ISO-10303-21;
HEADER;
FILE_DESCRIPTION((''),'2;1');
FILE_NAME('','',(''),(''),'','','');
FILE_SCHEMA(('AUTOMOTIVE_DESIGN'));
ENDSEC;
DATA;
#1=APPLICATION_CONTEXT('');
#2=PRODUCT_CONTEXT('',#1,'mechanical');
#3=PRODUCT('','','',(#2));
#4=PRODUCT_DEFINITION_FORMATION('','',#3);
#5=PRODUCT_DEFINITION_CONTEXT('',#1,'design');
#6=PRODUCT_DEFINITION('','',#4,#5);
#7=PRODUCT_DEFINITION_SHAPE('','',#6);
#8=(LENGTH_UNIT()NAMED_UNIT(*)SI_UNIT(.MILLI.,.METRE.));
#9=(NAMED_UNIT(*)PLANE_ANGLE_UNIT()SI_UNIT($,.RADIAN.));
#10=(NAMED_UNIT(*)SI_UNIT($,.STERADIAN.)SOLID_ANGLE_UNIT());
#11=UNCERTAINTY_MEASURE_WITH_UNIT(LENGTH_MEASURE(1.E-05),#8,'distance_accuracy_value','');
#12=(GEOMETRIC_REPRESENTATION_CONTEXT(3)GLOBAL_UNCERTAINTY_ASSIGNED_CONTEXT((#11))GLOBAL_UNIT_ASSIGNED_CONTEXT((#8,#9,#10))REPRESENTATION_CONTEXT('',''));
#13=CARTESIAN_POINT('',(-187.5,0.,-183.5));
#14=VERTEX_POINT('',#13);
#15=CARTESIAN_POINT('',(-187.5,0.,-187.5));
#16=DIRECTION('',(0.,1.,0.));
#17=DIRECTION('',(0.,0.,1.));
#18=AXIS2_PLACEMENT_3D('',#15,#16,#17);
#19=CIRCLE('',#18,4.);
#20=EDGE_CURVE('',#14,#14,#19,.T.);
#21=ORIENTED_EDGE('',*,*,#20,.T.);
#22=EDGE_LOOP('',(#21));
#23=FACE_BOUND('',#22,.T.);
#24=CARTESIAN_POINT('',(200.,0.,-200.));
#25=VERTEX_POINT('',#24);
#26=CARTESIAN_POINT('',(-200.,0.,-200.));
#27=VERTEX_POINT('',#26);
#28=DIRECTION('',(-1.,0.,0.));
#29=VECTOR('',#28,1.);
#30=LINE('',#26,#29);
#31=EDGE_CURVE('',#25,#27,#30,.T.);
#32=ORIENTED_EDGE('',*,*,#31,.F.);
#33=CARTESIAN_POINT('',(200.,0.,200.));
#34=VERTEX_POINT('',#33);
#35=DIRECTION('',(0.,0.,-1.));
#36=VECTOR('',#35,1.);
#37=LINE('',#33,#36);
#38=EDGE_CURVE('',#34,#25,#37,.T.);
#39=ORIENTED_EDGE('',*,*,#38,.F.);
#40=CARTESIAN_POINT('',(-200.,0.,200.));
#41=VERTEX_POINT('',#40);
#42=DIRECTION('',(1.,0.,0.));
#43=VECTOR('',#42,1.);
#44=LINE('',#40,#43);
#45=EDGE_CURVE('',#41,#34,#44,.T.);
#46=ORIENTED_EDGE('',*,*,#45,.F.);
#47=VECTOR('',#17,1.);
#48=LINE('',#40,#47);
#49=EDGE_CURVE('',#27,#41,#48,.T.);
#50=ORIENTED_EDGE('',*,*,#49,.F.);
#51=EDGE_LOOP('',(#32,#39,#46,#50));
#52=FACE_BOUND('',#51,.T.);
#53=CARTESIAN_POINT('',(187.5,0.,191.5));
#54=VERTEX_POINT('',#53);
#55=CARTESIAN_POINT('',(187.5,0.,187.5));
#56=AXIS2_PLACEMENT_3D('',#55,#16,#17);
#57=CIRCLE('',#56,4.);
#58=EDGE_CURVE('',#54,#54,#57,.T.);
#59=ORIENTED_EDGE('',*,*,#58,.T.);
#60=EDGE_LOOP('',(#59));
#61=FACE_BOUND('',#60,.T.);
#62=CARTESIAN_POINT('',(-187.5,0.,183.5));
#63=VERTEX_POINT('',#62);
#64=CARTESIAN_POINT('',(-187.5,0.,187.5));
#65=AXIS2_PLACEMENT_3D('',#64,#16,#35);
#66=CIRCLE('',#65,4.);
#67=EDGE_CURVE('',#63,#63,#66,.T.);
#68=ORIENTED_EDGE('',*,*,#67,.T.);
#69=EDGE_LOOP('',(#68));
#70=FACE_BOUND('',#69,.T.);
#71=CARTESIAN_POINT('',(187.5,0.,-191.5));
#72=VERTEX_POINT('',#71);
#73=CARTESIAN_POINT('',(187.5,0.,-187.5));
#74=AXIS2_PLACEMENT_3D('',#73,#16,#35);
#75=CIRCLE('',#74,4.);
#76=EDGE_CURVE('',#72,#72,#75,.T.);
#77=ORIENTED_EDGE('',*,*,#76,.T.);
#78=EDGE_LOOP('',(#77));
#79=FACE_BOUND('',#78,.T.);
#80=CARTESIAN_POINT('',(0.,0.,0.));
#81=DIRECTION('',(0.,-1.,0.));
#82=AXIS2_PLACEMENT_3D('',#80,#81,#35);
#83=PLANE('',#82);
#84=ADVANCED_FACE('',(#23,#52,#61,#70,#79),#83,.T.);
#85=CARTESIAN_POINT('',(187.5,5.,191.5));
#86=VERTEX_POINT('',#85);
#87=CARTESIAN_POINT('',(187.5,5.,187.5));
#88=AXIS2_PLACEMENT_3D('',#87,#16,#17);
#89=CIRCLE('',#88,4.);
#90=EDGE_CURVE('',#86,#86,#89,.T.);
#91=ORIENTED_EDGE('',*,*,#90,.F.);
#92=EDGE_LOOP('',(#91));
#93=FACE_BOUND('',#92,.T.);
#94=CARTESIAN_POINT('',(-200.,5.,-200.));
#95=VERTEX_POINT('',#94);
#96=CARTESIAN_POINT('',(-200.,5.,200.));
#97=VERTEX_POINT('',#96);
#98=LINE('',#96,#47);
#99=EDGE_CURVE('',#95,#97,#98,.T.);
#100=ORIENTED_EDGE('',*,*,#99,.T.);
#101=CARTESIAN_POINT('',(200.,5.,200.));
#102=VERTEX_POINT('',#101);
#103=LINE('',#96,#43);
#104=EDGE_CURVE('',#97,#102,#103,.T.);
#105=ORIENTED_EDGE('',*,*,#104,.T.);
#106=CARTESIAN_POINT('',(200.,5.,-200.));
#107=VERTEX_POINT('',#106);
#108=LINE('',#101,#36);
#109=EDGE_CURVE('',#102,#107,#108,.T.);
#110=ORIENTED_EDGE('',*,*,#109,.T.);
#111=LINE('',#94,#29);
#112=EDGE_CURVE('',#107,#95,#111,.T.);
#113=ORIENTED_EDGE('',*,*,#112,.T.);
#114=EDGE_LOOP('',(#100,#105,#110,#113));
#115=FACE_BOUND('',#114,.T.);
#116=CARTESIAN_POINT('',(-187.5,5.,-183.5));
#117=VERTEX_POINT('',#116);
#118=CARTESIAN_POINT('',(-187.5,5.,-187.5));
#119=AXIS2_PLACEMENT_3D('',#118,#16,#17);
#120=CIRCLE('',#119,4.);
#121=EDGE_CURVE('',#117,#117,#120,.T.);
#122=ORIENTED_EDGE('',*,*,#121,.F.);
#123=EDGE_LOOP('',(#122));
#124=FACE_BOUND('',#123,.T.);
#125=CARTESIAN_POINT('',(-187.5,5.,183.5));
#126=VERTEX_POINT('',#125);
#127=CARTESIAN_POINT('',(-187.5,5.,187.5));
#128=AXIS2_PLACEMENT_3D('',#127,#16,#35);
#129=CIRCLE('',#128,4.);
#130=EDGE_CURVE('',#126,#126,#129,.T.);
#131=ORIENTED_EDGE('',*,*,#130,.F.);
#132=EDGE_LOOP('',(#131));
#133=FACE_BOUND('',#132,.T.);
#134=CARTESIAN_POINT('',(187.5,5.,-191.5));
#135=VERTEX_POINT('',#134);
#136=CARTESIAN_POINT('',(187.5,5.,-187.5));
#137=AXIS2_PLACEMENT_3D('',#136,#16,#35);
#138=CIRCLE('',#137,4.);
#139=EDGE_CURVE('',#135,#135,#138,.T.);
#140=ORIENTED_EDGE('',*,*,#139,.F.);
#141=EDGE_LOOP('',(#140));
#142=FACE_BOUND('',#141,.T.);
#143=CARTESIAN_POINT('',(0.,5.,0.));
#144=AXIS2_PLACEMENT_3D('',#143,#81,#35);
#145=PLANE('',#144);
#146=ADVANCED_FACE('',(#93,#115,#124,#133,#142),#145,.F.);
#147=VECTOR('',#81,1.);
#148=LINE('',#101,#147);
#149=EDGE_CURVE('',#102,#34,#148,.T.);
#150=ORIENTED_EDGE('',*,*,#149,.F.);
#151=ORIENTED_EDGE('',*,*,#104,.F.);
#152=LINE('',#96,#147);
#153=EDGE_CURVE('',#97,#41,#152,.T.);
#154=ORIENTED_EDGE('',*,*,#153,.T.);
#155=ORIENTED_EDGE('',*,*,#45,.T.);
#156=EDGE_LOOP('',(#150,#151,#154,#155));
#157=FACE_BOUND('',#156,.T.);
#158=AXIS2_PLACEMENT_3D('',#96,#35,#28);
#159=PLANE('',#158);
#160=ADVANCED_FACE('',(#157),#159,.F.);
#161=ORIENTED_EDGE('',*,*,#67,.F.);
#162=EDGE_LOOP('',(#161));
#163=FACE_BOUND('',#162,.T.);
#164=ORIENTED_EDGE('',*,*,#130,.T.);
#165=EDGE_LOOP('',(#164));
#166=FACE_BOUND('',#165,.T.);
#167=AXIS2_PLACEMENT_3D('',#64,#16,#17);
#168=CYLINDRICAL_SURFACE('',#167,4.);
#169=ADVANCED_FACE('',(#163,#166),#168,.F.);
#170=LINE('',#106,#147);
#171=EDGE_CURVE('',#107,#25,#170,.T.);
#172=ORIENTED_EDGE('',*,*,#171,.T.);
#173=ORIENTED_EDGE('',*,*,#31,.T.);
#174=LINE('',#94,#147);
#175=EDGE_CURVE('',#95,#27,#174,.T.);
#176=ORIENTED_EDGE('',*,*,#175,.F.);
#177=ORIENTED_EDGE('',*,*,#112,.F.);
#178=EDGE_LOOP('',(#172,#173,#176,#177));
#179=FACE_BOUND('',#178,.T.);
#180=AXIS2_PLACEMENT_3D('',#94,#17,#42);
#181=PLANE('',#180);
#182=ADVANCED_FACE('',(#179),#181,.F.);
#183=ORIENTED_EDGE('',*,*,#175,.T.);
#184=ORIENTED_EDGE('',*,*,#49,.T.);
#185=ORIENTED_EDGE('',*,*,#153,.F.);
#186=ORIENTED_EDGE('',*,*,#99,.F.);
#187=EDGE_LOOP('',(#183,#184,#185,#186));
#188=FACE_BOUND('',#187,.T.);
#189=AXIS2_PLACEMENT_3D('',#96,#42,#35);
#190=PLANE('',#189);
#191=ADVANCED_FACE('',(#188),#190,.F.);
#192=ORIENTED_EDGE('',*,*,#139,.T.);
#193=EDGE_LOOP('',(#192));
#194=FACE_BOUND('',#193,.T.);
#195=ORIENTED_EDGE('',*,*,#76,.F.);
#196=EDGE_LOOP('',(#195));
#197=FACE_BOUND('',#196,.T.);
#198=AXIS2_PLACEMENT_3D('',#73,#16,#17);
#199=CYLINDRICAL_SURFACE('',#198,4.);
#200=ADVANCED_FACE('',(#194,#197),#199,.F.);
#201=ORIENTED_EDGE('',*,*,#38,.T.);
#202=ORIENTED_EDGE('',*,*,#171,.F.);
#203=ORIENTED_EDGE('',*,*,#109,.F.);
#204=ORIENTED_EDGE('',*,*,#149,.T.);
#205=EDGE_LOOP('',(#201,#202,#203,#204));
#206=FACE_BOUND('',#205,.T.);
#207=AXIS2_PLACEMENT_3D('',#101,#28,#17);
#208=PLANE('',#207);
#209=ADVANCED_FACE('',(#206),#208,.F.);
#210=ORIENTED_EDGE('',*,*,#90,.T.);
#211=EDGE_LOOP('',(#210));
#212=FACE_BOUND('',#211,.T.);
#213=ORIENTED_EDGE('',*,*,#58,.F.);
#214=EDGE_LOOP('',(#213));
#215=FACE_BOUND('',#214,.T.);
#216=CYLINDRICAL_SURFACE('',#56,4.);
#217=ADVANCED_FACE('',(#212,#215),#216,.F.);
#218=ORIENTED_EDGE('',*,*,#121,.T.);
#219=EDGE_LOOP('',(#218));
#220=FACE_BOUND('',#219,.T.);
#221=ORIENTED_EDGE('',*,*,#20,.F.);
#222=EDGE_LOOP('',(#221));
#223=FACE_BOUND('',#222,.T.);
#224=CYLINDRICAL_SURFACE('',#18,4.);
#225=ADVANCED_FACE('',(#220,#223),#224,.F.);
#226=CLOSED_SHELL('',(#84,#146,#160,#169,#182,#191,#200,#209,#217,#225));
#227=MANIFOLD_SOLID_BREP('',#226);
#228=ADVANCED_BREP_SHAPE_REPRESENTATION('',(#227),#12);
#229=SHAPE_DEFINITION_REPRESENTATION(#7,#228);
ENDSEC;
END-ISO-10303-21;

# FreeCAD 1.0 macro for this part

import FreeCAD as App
import Part
import Sketcher
from FreeCAD import Vector

doc = App.newDocument("Part")
body = doc.addObject("PartDesign::Body", "Body")

# Sketch on XZ plane
sketch1 = doc.addObject("Sketcher::SketchObject", "Sketch")
body.addObject(sketch1)
sketch1.AttachmentSupport = (doc.XZ_Plane, [""])
sketch1.MapMode = "FlatFace"
sketch1.addGeometry(Part.LineSegment(Vector(-200, -200, 0), Vector(-200, 200, 0)), False)
sketch1.addGeometry(Part.LineSegment(Vector(-200, 200, 0), Vector(200, 200, 0)), False)
sketch1.addGeometry(Part.LineSegment(Vector(200, 200, 0), Vector(200, -200, 0)), False)
sketch1.addGeometry(Part.LineSegment(Vector(200, -200, 0), Vector(-200, -200, 0)), False)
sketch1.addConstraint(Sketcher.Constraint("Coincident", 0, 2, 1, 1))
sketch1.addConstraint(Sketcher.Constraint("Coincident", 1, 2, 2, 1))
sketch1.addConstraint(Sketcher.Constraint("Coincident", 2, 2, 3, 1))
sketch1.addConstraint(Sketcher.Constraint("Coincident", 3, 2, 0, 1))
sketch1.addConstraint(Sketcher.Constraint("Vertical", 0))
sketch1.addConstraint(Sketcher.Constraint("Horizontal", 1))
sketch1.addConstraint(Sketcher.Constraint("Vertical", 2))
sketch1.addConstraint(Sketcher.Constraint("Horizontal", 3))
sketch1.addConstraint(Sketcher.Constraint("Symmetric", 0, 2, 2, 2, -1, 1))
sketch1.addConstraint(Sketcher.Constraint("Equal", 3, 0))
sketch1.addConstraint(Sketcher.Constraint("DistanceX", 1, 1, 1, 2, 400.0))
pad1 = doc.addObject("PartDesign::Pad", "Pad")
body.addObject(pad1)
pad1.Profile = sketch1
pad1.Length = 5
pad1.Reversed = True

# Sketch on XZ plane
sketch2 = doc.addObject("Sketcher::SketchObject", "Sketch001")
body.addObject(sketch2)
sketch2.AttachmentSupport = (doc.XZ_Plane, [""])
sketch2.MapMode = "FlatFace"
sketch2.AttachmentOffset = App.Placement(Vector(0, 0, -5), App.Rotation())
sketch2.addGeometry(Part.Circle(Vector(-187.5, -187.5, 0), Vector(0, 0, 1), 4), False)
sketch2.addGeometry(Part.Circle(Vector(187.5, -187.5, 0), Vector(0, 0, 1), 4), False)
sketch2.addGeometry(Part.Circle(Vector(-187.5, 187.5, 0), Vector(0, 0, 1), 4), False)
sketch2.addGeometry(Part.Circle(Vector(187.5, 187.5, 0), Vector(0, 0, 1), 4), False)
sketch2.addConstraint(Sketcher.Constraint("Equal", 0, 1))
sketch2.addConstraint(Sketcher.Constraint("Equal", 1, 2))
sketch2.addConstraint(Sketcher.Constraint("Equal", 2, 3))
sketch2.addConstraint(Sketcher.Constraint("Symmetric", 1, 3, 2, 3, -1, 1))
sketch2.addConstraint(Sketcher.Constraint("Symmetric", 0, 3, 3, 3, -1, 1))
sketch2.addConstraint(Sketcher.Constraint("Symmetric", 0, 3, 1, 3, -2))
sketch2.addConstraint(Sketcher.Constraint("Diameter", 0, 8.0))
sketch2.addConstraint(Sketcher.Constraint("DistanceX", 0, 3, 1, 3, 375.0))
sketch2.addConstraint(Sketcher.Constraint("DistanceY", 0, 3, 2, 3, 375.0))
pocket1 = doc.addObject("PartDesign::Pocket", "Pocket")
body.addObject(pocket1)
pocket1.Profile = sketch2
pocket1.Type = "ThroughAll"
pocket1.Reversed = True

doc.recompute()
